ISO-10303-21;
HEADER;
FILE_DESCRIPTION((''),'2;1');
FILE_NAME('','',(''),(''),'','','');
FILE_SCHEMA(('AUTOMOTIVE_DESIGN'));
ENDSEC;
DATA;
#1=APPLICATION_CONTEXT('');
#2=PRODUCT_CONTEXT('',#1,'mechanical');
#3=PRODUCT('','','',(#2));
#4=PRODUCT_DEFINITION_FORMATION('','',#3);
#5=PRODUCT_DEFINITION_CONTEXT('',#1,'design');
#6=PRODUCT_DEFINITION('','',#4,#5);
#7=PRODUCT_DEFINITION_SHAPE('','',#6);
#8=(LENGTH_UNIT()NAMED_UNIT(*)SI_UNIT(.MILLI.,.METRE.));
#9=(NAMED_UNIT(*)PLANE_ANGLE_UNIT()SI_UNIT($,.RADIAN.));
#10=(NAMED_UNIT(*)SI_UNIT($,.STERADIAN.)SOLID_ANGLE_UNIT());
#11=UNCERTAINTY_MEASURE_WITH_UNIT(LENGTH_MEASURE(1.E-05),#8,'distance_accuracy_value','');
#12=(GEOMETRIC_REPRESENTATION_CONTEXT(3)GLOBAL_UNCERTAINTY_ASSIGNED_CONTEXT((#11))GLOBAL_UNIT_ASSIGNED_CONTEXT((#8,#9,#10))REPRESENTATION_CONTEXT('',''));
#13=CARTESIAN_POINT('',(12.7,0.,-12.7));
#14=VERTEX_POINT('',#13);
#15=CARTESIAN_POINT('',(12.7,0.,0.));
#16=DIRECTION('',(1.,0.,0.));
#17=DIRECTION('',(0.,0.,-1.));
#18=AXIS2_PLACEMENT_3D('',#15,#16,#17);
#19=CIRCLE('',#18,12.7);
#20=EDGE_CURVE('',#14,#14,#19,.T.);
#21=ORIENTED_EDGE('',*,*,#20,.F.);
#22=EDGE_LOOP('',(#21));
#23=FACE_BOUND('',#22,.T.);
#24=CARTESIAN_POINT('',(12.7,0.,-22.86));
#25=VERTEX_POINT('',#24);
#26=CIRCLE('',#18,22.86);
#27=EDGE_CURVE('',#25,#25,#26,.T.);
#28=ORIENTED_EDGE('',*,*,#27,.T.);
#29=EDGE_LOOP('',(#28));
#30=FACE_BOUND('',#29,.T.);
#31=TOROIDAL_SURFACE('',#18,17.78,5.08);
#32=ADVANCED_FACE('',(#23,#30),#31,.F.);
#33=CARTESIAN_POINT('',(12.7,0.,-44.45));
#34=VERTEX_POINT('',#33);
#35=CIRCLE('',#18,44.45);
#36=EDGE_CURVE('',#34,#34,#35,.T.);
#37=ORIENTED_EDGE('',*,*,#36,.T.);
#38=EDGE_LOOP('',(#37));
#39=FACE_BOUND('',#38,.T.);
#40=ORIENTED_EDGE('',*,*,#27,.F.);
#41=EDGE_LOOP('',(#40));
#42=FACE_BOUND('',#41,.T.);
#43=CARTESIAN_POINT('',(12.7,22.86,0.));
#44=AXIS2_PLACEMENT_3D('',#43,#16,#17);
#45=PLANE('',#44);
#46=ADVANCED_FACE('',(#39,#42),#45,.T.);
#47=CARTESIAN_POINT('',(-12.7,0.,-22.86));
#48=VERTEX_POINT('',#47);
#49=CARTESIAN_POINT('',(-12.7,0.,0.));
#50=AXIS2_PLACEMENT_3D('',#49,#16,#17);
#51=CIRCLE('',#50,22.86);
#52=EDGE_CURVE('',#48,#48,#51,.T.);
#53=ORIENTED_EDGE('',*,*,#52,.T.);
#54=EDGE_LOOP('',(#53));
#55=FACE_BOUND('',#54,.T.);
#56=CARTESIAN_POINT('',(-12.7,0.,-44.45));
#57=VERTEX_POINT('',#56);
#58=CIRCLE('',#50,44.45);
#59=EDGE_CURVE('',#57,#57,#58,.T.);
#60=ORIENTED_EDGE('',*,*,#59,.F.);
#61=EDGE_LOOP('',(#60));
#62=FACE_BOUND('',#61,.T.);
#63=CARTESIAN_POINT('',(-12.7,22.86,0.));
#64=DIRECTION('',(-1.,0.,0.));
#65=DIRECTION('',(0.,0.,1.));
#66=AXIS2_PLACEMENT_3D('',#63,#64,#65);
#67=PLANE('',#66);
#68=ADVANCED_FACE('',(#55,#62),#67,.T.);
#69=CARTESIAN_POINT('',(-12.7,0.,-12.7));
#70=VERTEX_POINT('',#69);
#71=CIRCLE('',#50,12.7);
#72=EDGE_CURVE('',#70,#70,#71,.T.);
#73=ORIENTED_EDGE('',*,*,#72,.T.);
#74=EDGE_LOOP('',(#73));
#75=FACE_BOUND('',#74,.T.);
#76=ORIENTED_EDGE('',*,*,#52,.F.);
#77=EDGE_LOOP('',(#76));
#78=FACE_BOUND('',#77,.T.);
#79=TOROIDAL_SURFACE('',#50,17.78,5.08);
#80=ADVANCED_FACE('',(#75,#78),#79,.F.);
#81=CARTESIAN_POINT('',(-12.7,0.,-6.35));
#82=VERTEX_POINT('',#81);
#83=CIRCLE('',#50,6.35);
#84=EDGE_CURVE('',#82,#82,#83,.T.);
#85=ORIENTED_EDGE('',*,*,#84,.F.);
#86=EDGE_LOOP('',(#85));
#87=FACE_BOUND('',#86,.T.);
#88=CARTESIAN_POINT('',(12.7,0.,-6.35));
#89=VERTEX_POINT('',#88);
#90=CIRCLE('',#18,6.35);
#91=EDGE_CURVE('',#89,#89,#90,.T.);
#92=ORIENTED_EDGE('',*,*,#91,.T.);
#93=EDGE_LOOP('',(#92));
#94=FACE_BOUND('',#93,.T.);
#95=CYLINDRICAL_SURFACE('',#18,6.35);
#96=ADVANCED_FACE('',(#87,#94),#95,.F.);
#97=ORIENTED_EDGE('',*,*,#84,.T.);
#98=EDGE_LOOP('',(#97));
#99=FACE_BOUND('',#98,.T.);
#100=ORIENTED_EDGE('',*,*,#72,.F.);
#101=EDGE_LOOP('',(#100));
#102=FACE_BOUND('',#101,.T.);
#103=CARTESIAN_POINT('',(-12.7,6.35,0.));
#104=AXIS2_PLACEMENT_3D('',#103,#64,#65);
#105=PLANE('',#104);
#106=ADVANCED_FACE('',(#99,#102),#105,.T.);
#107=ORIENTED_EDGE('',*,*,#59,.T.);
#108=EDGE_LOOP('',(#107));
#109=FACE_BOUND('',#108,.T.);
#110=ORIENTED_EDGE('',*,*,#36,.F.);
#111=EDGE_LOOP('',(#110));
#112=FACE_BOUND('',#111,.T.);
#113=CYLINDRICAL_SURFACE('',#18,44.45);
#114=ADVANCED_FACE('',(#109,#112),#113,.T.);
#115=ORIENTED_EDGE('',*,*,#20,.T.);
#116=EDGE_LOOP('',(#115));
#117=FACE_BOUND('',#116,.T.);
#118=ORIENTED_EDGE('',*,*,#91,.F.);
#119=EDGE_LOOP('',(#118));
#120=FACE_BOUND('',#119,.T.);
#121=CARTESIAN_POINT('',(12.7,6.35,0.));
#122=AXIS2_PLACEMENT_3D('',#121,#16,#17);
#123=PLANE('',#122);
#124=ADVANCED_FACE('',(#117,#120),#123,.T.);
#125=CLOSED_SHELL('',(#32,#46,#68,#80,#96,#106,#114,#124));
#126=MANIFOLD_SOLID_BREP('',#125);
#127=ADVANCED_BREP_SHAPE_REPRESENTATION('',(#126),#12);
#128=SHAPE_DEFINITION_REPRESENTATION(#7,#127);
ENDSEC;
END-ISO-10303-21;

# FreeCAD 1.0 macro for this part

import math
import FreeCAD as App
import Part
import Sketcher
from FreeCAD import Vector
Q = App.Units.Quantity

doc = App.newDocument("Part")
body = doc.addObject("PartDesign::Body", "Body")

# Sketch on XY plane
sketch1 = body.newObject("Sketcher::SketchObject", "Sketch")
sketch1.AttachmentSupport = (doc.getObject("XY_Plane"), [""])
sketch1.MapMode = "FlatFace"
sketch1.addGeometry(Part.LineSegment(Vector(13, 23, 0), Vector(13, 44, 0)), False)
sketch1.addGeometry(Part.LineSegment(Vector(13, 44, 0), Vector(-13, 44, 0)), False)
sketch1.addGeometry(Part.LineSegment(Vector(-13, 44, 0), Vector(-13, 23, 0)), False)
sketch1.addGeometry(Part.ArcOfCircle(Part.Circle(Vector(-13, 18, 0), Vector(0, 0, 1), 5), math.radians(-90), math.radians(90)), False)
sketch1.addGeometry(Part.LineSegment(Vector(-13, 13, 0), Vector(-13, 6, 0)), False)
sketch1.addGeometry(Part.LineSegment(Vector(-13, 6, 0), Vector(13, 6, 0)), False)
sketch1.addGeometry(Part.LineSegment(Vector(13, 6, 0), Vector(13, 13, 0)), False)
sketch1.addGeometry(Part.ArcOfCircle(Part.Circle(Vector(13, 18, 0), Vector(0, 0, 1), 5), math.radians(90), math.radians(270)), False)
sketch1.addConstraint(Sketcher.Constraint("Coincident", 0, 2, 1, 1))
sketch1.addConstraint(Sketcher.Constraint("Coincident", 1, 2, 2, 1))
sketch1.addConstraint(Sketcher.Constraint("Coincident", 2, 2, 3, 2))
sketch1.addConstraint(Sketcher.Constraint("Coincident", 3, 1, 4, 1))
sketch1.addConstraint(Sketcher.Constraint("Coincident", 4, 2, 5, 1))
sketch1.addConstraint(Sketcher.Constraint("Coincident", 5, 2, 6, 1))
sketch1.addConstraint(Sketcher.Constraint("Coincident", 6, 2, 7, 2))
sketch1.addConstraint(Sketcher.Constraint("Coincident", 7, 1, 0, 1))
sketch1.addConstraint(Sketcher.Constraint("Vertical", 0))
sketch1.addConstraint(Sketcher.Constraint("Horizontal", 1))
sketch1.addConstraint(Sketcher.Constraint("Vertical", 2))
sketch1.addConstraint(Sketcher.Constraint("Vertical", 4))
sketch1.addConstraint(Sketcher.Constraint("Horizontal", 5))
sketch1.addConstraint(Sketcher.Constraint("Vertical", 6))
sketch1.addConstraint(Sketcher.Constraint("Equal", 3, 7))
sketch1.addConstraint(Sketcher.Constraint("Symmetric", 3, 3, 7, 3, -2))
sketch1.addConstraint(Sketcher.Constraint("Vertical", 7, 3, 0, 2))
sketch1.addConstraint(Sketcher.Constraint("Vertical", 3, 3, 1, 2))
sketch1.addConstraint(Sketcher.Constraint("Vertical", 2, 2, 3, 1))
sketch1.addConstraint(Sketcher.Constraint("Vertical", 0, 2, 5, 2))
sketch1.addConstraint(Sketcher.Constraint("Radius", 3, Q("0.2 in")))
sketch1.addConstraint(Sketcher.Constraint("DistanceX", 1, 2, 1, 1, Q("1 in")))
sketch1.addConstraint(Sketcher.Constraint("DistanceY", 0, 1, 0, 2, Q("0.85 in")))
sketch1.addConstraint(Sketcher.Constraint("DistanceY", 4, 2, 4, 1, Q("0.25 in")))
sketch1.addConstraint(Sketcher.Constraint("DistanceY", -1, 1, 3, 3, Q("0.7 in")))
revolution = body.newObject("PartDesign::Revolution", "Revolution")
revolution.Profile = sketch1
revolution.ReferenceAxis = (sketch1, ["H_Axis"])
revolution.Angle = 360

doc.recompute()
